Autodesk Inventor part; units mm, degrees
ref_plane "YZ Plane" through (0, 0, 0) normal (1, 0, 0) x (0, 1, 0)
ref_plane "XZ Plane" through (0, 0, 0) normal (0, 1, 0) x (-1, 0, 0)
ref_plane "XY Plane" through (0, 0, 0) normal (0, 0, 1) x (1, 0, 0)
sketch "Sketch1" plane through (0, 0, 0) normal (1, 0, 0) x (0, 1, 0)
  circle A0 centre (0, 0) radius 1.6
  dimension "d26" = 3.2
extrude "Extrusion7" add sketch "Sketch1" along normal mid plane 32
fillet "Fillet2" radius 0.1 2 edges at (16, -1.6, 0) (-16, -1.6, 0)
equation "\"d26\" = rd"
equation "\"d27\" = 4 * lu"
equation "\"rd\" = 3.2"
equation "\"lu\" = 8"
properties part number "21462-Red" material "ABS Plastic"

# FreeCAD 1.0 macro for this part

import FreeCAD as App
import Part
import Sketcher

V = App.Vector
Q = App.Units.Quantity


def edges_at(feature, points):
    """Names of the edges that pass closest to the given points."""
    edges = feature.Shape.Edges
    near = lambda p: min(range(len(edges)), key=lambda i: edges[i].distToShape(Part.Vertex(*p))[0])
    return sorted({f"Edge{near(p) + 1}" for p in points})

doc = App.newDocument("Part")
body = doc.addObject("PartDesign::Body", "Body")

# Sketch on YZ plane
sketch1 = body.newObject("Sketcher::SketchObject", "Sketch")
sketch1.AttachmentSupport = (doc.getObject("YZ_Plane"), [""])
sketch1.MapMode = "FlatFace"
sketch1.addGeometry(Part.Circle(V(0, 0, 0), V(0, 0, 1), 1.6), False)
sketch1.addConstraint(Sketcher.Constraint("Coincident", 0, 3, -1, 1))
sketch1.addConstraint(Sketcher.Constraint("Diameter", 0, Q("3.2 mm")))
pad1 = body.newObject("PartDesign::Pad", "Pad")
pad1.Profile = sketch1
pad1.Length = 32
pad1.Midplane = True
doc.recompute()

fillet = body.newObject("PartDesign::Fillet", "Fillet")
fillet.Base = (pad1, edges_at(pad1, [(16, -1.6, 0), (-16, -1.6, 0)]))
fillet.Radius = 0.1

doc.recompute()
